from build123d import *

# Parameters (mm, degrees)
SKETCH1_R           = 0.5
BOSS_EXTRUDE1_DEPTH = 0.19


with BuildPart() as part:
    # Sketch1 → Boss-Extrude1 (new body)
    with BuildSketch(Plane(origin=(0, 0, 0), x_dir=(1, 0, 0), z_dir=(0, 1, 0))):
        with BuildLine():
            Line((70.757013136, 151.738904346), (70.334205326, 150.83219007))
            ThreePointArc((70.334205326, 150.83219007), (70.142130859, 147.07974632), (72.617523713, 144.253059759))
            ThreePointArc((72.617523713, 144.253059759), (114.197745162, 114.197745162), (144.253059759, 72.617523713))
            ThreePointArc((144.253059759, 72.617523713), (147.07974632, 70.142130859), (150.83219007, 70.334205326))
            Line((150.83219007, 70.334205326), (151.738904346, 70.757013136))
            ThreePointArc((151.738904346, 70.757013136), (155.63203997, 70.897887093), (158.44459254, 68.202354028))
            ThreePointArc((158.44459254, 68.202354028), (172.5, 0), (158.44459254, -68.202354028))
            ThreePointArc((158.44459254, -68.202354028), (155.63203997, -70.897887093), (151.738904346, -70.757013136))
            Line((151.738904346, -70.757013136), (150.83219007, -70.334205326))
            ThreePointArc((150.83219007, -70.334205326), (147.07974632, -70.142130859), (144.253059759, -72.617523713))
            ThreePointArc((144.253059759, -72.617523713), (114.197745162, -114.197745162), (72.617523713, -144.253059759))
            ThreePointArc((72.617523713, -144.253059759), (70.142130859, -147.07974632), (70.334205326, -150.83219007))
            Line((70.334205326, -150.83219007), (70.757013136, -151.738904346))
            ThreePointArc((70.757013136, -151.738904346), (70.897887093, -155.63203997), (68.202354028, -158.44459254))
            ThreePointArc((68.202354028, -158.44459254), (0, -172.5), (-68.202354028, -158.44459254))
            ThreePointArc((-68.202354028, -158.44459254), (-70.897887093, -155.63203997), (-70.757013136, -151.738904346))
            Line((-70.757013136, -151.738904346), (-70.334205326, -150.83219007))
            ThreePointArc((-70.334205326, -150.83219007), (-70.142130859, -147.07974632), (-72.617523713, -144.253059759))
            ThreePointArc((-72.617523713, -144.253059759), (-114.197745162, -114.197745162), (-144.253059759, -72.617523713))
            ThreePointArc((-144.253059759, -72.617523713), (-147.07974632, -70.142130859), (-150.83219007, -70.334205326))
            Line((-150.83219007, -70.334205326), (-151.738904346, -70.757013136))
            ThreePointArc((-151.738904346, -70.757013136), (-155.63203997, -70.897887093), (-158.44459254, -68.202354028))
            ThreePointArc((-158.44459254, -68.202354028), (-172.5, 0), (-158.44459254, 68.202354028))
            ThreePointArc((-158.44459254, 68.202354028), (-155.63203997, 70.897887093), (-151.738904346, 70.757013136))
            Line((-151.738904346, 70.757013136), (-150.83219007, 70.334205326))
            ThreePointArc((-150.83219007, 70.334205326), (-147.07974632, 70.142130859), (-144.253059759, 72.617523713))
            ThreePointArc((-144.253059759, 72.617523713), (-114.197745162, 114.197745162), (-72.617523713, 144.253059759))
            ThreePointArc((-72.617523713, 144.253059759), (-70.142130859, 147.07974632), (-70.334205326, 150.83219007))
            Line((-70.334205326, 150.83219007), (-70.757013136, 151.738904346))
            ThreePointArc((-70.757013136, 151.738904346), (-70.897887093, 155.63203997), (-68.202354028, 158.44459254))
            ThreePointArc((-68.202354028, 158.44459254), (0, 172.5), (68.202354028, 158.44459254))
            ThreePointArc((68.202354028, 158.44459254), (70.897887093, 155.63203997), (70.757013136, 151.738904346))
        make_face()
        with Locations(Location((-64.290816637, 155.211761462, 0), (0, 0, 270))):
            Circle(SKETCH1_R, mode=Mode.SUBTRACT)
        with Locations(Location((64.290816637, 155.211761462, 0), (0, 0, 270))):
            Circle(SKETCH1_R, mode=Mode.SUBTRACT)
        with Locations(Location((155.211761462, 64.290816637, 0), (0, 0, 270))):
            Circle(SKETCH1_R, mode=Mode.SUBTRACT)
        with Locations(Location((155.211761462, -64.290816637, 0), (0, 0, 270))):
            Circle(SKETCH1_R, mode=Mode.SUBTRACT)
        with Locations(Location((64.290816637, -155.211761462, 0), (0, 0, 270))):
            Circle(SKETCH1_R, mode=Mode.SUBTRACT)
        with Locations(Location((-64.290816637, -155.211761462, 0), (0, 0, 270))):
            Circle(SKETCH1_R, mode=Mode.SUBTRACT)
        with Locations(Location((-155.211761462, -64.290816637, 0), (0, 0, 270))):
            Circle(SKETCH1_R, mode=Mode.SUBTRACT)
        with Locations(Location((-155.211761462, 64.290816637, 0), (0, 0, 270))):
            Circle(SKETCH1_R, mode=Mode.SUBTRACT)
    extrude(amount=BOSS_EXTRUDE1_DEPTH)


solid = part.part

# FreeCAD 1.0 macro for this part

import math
import FreeCAD as App
import Part
import Sketcher

V = App.Vector
Q = App.Units.Quantity

doc = App.newDocument("Part")
params = doc.addObject("Spreadsheet::Sheet", "Params")
for row, (alias, value) in enumerate([
    ("sketch1_diameter", "1 mm"),
    ("sketch1_radius", "5 mm"),
    ("sketch1_radius2", "172.5 mm"),
    ("sketch1_radius3", "161.5 mm"),
    ("pad1_length", "0.19 mm"),
], start=1):
    params.set(f"A{row}", alias)
    params.set(f"B{row}", "=" + value)
    params.setAlias(f"B{row}", alias)

body = doc.addObject("PartDesign::Body", "Body")

# Sketch on XZ plane
sketch1 = doc.addObject("Sketcher::SketchObject", "Sketch")
body.addObject(sketch1)
sketch1.AttachmentSupport = (doc.XZ_Plane, [""])
sketch1.MapMode = "FlatFace"
sketch1.addGeometry(Part.LineSegment(V(70.334205, -150.83219, 0), V(70.757013, -151.738904, 0)), False)
sketch1.addGeometry(Part.ArcOfCircle(Part.Circle(V(66.225474, -153.851996, 0), V(0, 0, 1), 5), math.radians(-66.710576), math.radians(25)), False)
sketch1.addGeometry(Part.ArcOfCircle(Part.Circle(V(0, 0, 0), V(0, 0, 1), 172.5), math.radians(-113.289424), math.radians(-66.710576)), False)
sketch1.addGeometry(Part.ArcOfCircle(Part.Circle(V(-66.225474, -153.851996, 0), V(0, 0, 1), 5), math.radians(155), math.radians(246.710576)), False)
sketch1.addGeometry(Part.LineSegment(V(-70.757013, -151.738904, 0), V(-70.334205, -150.83219, 0)), False)
sketch1.addGeometry(Part.ArcOfCircle(Part.Circle(V(-74.865744, -148.719099, 0), V(0, 0, 1), 5), math.radians(-25), math.radians(63.279147)), False)
sketch1.addGeometry(Part.ArcOfCircle(Part.Circle(V(0, 0, 0), V(0, 0, 1), 161.5), math.radians(-153.279147), math.radians(-116.720853)), False)
sketch1.addGeometry(Part.ArcOfCircle(Part.Circle(V(-148.719099, -74.865744, 0), V(0, 0, 1), 5), math.radians(26.720853), math.radians(115)), False)
sketch1.addGeometry(Part.LineSegment(V(-150.83219, -70.334205, 0), V(-151.738904, -70.757013, 0)), False)
sketch1.addGeometry(Part.ArcOfCircle(Part.Circle(V(-153.851996, -66.225474, 0), V(0, 0, 1), 5), math.radians(-156.710576), math.radians(-65)), False)
sketch1.addGeometry(Part.ArcOfCircle(Part.Circle(V(0, 0, 0), V(0, 0, 1), 172.5), math.radians(156.710576), math.radians(203.289424)), False)
sketch1.addGeometry(Part.ArcOfCircle(Part.Circle(V(-153.851996, 66.225474, 0), V(0, 0, 1), 5), math.radians(65), math.radians(156.710576)), False)
sketch1.addGeometry(Part.LineSegment(V(-151.738904, 70.757013, 0), V(-150.83219, 70.334205, 0)), False)
sketch1.addGeometry(Part.ArcOfCircle(Part.Circle(V(-148.719099, 74.865744, 0), V(0, 0, 1), 5), math.radians(-115), math.radians(-26.720853)), False)
sketch1.addGeometry(Part.ArcOfCircle(Part.Circle(V(0, 0, 0), V(0, 0, 1), 161.5), math.radians(116.720853), math.radians(153.279147)), False)
sketch1.addGeometry(Part.ArcOfCircle(Part.Circle(V(-74.865744, 148.719099, 0), V(0, 0, 1), 5), math.radians(-63.279147), math.radians(25)), False)
sketch1.addGeometry(Part.LineSegment(V(-70.334205, 150.83219, 0), V(-70.757013, 151.738904, 0)), False)
sketch1.addGeometry(Part.ArcOfCircle(Part.Circle(V(-66.225474, 153.851996, 0), V(0, 0, 1), 5), math.radians(113.289424), math.radians(205)), False)
sketch1.addGeometry(Part.ArcOfCircle(Part.Circle(V(0, 0, 0), V(0, 0, 1), 172.5), math.radians(66.710576), math.radians(113.289424)), False)
sketch1.addGeometry(Part.ArcOfCircle(Part.Circle(V(66.225474, 153.851996, 0), V(0, 0, 1), 5), math.radians(-25), math.radians(66.710576)), False)
sketch1.addGeometry(Part.LineSegment(V(70.757013, 151.738904, 0), V(70.334205, 150.83219, 0)), False)
sketch1.addGeometry(Part.ArcOfCircle(Part.Circle(V(74.865744, 148.719099, 0), V(0, 0, 1), 5), math.radians(155), math.radians(243.279147)), False)
sketch1.addGeometry(Part.ArcOfCircle(Part.Circle(V(0, 0, 0), V(0, 0, 1), 161.5), math.radians(26.720853), math.radians(63.279147)), False)
sketch1.addGeometry(Part.ArcOfCircle(Part.Circle(V(148.719099, 74.865744, 0), V(0, 0, 1), 5), math.radians(-153.279147), math.radians(-65)), False)
sketch1.addGeometry(Part.LineSegment(V(150.83219, 70.334205, 0), V(151.738904, 70.757013, 0)), False)
sketch1.addGeometry(Part.ArcOfCircle(Part.Circle(V(153.851996, 66.225474, 0), V(0, 0, 1), 5), math.radians(23.289424), math.radians(115)), False)
sketch1.addGeometry(Part.ArcOfCircle(Part.Circle(V(0, 0, 0), V(0, 0, 1), 172.5), math.radians(-23.289424), math.radians(23.289424)), False)
sketch1.addGeometry(Part.ArcOfCircle(Part.Circle(V(153.851996, -66.225474, 0), V(0, 0, 1), 5), math.radians(-115), math.radians(-23.289424)), False)
sketch1.addGeometry(Part.LineSegment(V(151.738904, -70.757013, 0), V(150.83219, -70.334205, 0)), False)
sketch1.addGeometry(Part.ArcOfCircle(Part.Circle(V(148.719099, -74.865744, 0), V(0, 0, 1), 5), math.radians(65), math.radians(153.279147)), False)
sketch1.addGeometry(Part.ArcOfCircle(Part.Circle(V(0, 0, 0), V(0, 0, 1), 161.5), math.radians(-63.279147), math.radians(-26.720853)), False)
sketch1.addGeometry(Part.ArcOfCircle(Part.Circle(V(74.865744, -148.719099, 0), V(0, 0, 1), 5), math.radians(116.720853), math.radians(205)), False)
sketch1.addGeometry(Part.Circle(V(64.290817, 155.211761, 0), V(0, 0, 1), 0.5), False)
sketch1.addGeometry(Part.Circle(V(155.211761, 64.290817, 0), V(0, 0, 1), 0.5), False)
sketch1.addGeometry(Part.Circle(V(-64.290817, 155.211761, 0), V(0, 0, 1), 0.5), False)
sketch1.addGeometry(Part.Circle(V(-155.211761, 64.290817, 0), V(0, 0, 1), 0.5), False)
sketch1.addGeometry(Part.Circle(V(155.211761, -64.290817, 0), V(0, 0, 1), 0.5), False)
sketch1.addGeometry(Part.Circle(V(64.290817, -155.211761, 0), V(0, 0, 1), 0.5), False)
sketch1.addGeometry(Part.Circle(V(-155.211761, -64.290817, 0), V(0, 0, 1), 0.5), False)
sketch1.addGeometry(Part.Circle(V(-64.290817, -155.211761, 0), V(0, 0, 1), 0.5), False)
sketch1.addConstraint(Sketcher.Constraint("Tangent", 0, 2, 1, 2))
sketch1.addConstraint(Sketcher.Constraint("Tangent", 1, 1, 2, 2))
sketch1.addConstraint(Sketcher.Constraint("Tangent", 2, 1, 3, 2))
sketch1.addConstraint(Sketcher.Constraint("Tangent", 3, 1, 4, 1))
sketch1.addConstraint(Sketcher.Constraint("Tangent", 4, 2, 5, 1))
sketch1.addConstraint(Sketcher.Constraint("Tangent", 5, 2, 6, 2))
sketch1.addConstraint(Sketcher.Constraint("Tangent", 6, 1, 7, 1))
sketch1.addConstraint(Sketcher.Constraint("Tangent", 7, 2, 8, 1))
sketch1.addConstraint(Sketcher.Constraint("Tangent", 8, 2, 9, 2))
sketch1.addConstraint(Sketcher.Constraint("Tangent", 9, 1, 10, 2))
sketch1.addConstraint(Sketcher.Constraint("Tangent", 10, 1, 11, 2))
sketch1.addConstraint(Sketcher.Constraint("Tangent", 11, 1, 12, 1))
sketch1.addConstraint(Sketcher.Constraint("Tangent", 12, 2, 13, 1))
sketch1.addConstraint(Sketcher.Constraint("Tangent", 13, 2, 14, 2))
sketch1.addConstraint(Sketcher.Constraint("Tangent", 14, 1, 15, 1))
sketch1.addConstraint(Sketcher.Constraint("Tangent", 15, 2, 16, 1))
sketch1.addConstraint(Sketcher.Constraint("Tangent", 16, 2, 17, 2))
sketch1.addConstraint(Sketcher.Constraint("Tangent", 17, 1, 18, 2))
sketch1.addConstraint(Sketcher.Constraint("Tangent", 18, 1, 19, 2))
sketch1.addConstraint(Sketcher.Constraint("Tangent", 19, 1, 20, 1))
sketch1.addConstraint(Sketcher.Constraint("Tangent", 20, 2, 21, 1))
sketch1.addConstraint(Sketcher.Constraint("Tangent", 21, 2, 22, 2))
sketch1.addConstraint(Sketcher.Constraint("Tangent", 22, 1, 23, 1))
sketch1.addConstraint(Sketcher.Constraint("Tangent", 23, 2, 24, 1))
sketch1.addConstraint(Sketcher.Constraint("Tangent", 24, 2, 25, 2))
sketch1.addConstraint(Sketcher.Constraint("Tangent", 25, 1, 26, 2))
sketch1.addConstraint(Sketcher.Constraint("Tangent", 26, 1, 27, 2))
sketch1.addConstraint(Sketcher.Constraint("Tangent", 27, 1, 28, 1))
sketch1.addConstraint(Sketcher.Constraint("Tangent", 28, 2, 29, 1))
sketch1.addConstraint(Sketcher.Constraint("Tangent", 29, 2, 30, 2))
sketch1.addConstraint(Sketcher.Constraint("Tangent", 30, 1, 31, 1))
sketch1.addConstraint(Sketcher.Constraint("Tangent", 31, 2, 0, 1))
sketch1.addConstraint(Sketcher.Constraint("Coincident", 2, 3, -1, 1))
sketch1.addConstraint(Sketcher.Constraint("Coincident", 6, 3, -1, 1))
sketch1.addConstraint(Sketcher.Constraint("Coincident", 10, 3, -1, 1))
sketch1.addConstraint(Sketcher.Constraint("Coincident", 14, 3, -1, 1))
sketch1.addConstraint(Sketcher.Constraint("Coincident", 18, 3, -1, 1))
sketch1.addConstraint(Sketcher.Constraint("Coincident", 22, 3, -1, 1))
sketch1.addConstraint(Sketcher.Constraint("Coincident", 26, 3, -1, 1))
sketch1.addConstraint(Sketcher.Constraint("Coincident", 30, 3, -1, 1))
sketch1.addConstraint(Sketcher.Constraint("Equal", 1, 3))
sketch1.addConstraint(Sketcher.Constraint("Equal", 3, 5))
sketch1.addConstraint(Sketcher.Constraint("Equal", 5, 7))
sketch1.addConstraint(Sketcher.Constraint("Equal", 7, 9))
sketch1.addConstraint(Sketcher.Constraint("Equal", 2, 10))
sketch1.addConstraint(Sketcher.Constraint("Equal", 9, 11))
sketch1.addConstraint(Sketcher.Constraint("Equal", 11, 13))
sketch1.addConstraint(Sketcher.Constraint("Equal", 6, 14))
sketch1.addConstraint(Sketcher.Constraint("Equal", 13, 15))
sketch1.addConstraint(Sketcher.Constraint("Equal", 15, 17))
sketch1.addConstraint(Sketcher.Constraint("Equal", 10, 18))
sketch1.addConstraint(Sketcher.Constraint("Equal", 17, 19))
sketch1.addConstraint(Sketcher.Constraint("Equal", 19, 21))
sketch1.addConstraint(Sketcher.Constraint("Equal", 14, 22))
sketch1.addConstraint(Sketcher.Constraint("Equal", 21, 23))
sketch1.addConstraint(Sketcher.Constraint("Equal", 23, 25))
sketch1.addConstraint(Sketcher.Constraint("Equal", 18, 26))
sketch1.addConstraint(Sketcher.Constraint("Equal", 25, 27))
sketch1.addConstraint(Sketcher.Constraint("Equal", 27, 29))
sketch1.addConstraint(Sketcher.Constraint("Equal", 22, 30))
sketch1.addConstraint(Sketcher.Constraint("Equal", 29, 31))
sketch1.addConstraint(Sketcher.Constraint("Equal", 32, 33))
sketch1.addConstraint(Sketcher.Constraint("Equal", 33, 34))
sketch1.addConstraint(Sketcher.Constraint("Equal", 34, 35))
sketch1.addConstraint(Sketcher.Constraint("Equal", 35, 36))
sketch1.addConstraint(Sketcher.Constraint("Equal", 36, 37))
sketch1.addConstraint(Sketcher.Constraint("Equal", 37, 38))
sketch1.addConstraint(Sketcher.Constraint("Equal", 38, 39))
sketch1.addConstraint(Sketcher.Constraint("Symmetric", 35, 3, 36, 3, -1, 1))
sketch1.addConstraint(Sketcher.Constraint("Symmetric", 34, 3, 37, 3, -1, 1))
sketch1.addConstraint(Sketcher.Constraint("Symmetric", 33, 3, 38, 3, -1, 1))
sketch1.addConstraint(Sketcher.Constraint("Symmetric", 32, 3, 39, 3, -1, 1))
sketch1.addConstraint(Sketcher.Constraint("Symmetric", 0, 2, 16, 2, -1, 1))
sketch1.addConstraint(Sketcher.Constraint("Symmetric", 3, 1, 19, 1, -1, 1))
sketch1.addConstraint(Sketcher.Constraint("Symmetric", 7, 2, 23, 2, -1, 1))
sketch1.addConstraint(Sketcher.Constraint("Symmetric", 11, 1, 27, 1, -1, 1))
sketch1.addConstraint(Sketcher.Constraint("Symmetric", 32, 3, 34, 3, -2))
sketch1.addConstraint(Sketcher.Constraint("Symmetric", 33, 3, 35, 3, -2))
sketch1.addConstraint(Sketcher.Constraint("Symmetric", 0, 2, 3, 1, -2))
sketch1.addConstraint(Sketcher.Constraint("Symmetric", 12, 2, 23, 2, -2))
sketch1.addConstraint(Sketcher.Constraint("Perpendicular", 0, 8))
sketch1.addConstraint(Sketcher.Constraint("Equal", 4, 8))
sketch1.addConstraint(Sketcher.Constraint("Diameter", 32, Q("1 mm")))
sketch1.addConstraint(Sketcher.Constraint("Radius", 1, Q("5 mm")))
sketch1.addConstraint(Sketcher.Constraint("Radius", 2, Q("172.5 mm")))
sketch1.addConstraint(Sketcher.Constraint("Radius", 6, Q("161.5 mm")))
sketch1.addConstraint(Sketcher.Constraint("Angle", 0, Q("-65 deg")))
sketch1.addConstraint(Sketcher.Constraint("DistanceY", 5, 3, -1, 1, Q("148.719099 mm")))
sketch1.addConstraint(Sketcher.Constraint("DistanceY", -1, 1, 32, 3, Q("155.211761 mm")))
sketch1.addConstraint(Sketcher.Constraint("DistanceX", -1, 1, 33, 3, Q("155.211761 mm")))
sketch1.addConstraint(Sketcher.Constraint("DistanceX", -1, 1, 32, 3, Q("64.290817 mm")))
sketch1.addConstraint(Sketcher.Constraint("DistanceY", -1, 1, 33, 3, Q("64.290817 mm")))
sketch1.setExpression("Constraints[82]", "Params.sketch1_diameter")
sketch1.setExpression("Constraints[83]", "Params.sketch1_radius")
sketch1.setExpression("Constraints[84]", "Params.sketch1_radius2")
sketch1.setExpression("Constraints[85]", "Params.sketch1_radius3")
pad1 = doc.addObject("PartDesign::Pad", "Pad")
body.addObject(pad1)
pad1.Profile = sketch1
pad1.setExpression("Length", "Params.pad1_length")
pad1.Reversed = True

doc.recompute()
